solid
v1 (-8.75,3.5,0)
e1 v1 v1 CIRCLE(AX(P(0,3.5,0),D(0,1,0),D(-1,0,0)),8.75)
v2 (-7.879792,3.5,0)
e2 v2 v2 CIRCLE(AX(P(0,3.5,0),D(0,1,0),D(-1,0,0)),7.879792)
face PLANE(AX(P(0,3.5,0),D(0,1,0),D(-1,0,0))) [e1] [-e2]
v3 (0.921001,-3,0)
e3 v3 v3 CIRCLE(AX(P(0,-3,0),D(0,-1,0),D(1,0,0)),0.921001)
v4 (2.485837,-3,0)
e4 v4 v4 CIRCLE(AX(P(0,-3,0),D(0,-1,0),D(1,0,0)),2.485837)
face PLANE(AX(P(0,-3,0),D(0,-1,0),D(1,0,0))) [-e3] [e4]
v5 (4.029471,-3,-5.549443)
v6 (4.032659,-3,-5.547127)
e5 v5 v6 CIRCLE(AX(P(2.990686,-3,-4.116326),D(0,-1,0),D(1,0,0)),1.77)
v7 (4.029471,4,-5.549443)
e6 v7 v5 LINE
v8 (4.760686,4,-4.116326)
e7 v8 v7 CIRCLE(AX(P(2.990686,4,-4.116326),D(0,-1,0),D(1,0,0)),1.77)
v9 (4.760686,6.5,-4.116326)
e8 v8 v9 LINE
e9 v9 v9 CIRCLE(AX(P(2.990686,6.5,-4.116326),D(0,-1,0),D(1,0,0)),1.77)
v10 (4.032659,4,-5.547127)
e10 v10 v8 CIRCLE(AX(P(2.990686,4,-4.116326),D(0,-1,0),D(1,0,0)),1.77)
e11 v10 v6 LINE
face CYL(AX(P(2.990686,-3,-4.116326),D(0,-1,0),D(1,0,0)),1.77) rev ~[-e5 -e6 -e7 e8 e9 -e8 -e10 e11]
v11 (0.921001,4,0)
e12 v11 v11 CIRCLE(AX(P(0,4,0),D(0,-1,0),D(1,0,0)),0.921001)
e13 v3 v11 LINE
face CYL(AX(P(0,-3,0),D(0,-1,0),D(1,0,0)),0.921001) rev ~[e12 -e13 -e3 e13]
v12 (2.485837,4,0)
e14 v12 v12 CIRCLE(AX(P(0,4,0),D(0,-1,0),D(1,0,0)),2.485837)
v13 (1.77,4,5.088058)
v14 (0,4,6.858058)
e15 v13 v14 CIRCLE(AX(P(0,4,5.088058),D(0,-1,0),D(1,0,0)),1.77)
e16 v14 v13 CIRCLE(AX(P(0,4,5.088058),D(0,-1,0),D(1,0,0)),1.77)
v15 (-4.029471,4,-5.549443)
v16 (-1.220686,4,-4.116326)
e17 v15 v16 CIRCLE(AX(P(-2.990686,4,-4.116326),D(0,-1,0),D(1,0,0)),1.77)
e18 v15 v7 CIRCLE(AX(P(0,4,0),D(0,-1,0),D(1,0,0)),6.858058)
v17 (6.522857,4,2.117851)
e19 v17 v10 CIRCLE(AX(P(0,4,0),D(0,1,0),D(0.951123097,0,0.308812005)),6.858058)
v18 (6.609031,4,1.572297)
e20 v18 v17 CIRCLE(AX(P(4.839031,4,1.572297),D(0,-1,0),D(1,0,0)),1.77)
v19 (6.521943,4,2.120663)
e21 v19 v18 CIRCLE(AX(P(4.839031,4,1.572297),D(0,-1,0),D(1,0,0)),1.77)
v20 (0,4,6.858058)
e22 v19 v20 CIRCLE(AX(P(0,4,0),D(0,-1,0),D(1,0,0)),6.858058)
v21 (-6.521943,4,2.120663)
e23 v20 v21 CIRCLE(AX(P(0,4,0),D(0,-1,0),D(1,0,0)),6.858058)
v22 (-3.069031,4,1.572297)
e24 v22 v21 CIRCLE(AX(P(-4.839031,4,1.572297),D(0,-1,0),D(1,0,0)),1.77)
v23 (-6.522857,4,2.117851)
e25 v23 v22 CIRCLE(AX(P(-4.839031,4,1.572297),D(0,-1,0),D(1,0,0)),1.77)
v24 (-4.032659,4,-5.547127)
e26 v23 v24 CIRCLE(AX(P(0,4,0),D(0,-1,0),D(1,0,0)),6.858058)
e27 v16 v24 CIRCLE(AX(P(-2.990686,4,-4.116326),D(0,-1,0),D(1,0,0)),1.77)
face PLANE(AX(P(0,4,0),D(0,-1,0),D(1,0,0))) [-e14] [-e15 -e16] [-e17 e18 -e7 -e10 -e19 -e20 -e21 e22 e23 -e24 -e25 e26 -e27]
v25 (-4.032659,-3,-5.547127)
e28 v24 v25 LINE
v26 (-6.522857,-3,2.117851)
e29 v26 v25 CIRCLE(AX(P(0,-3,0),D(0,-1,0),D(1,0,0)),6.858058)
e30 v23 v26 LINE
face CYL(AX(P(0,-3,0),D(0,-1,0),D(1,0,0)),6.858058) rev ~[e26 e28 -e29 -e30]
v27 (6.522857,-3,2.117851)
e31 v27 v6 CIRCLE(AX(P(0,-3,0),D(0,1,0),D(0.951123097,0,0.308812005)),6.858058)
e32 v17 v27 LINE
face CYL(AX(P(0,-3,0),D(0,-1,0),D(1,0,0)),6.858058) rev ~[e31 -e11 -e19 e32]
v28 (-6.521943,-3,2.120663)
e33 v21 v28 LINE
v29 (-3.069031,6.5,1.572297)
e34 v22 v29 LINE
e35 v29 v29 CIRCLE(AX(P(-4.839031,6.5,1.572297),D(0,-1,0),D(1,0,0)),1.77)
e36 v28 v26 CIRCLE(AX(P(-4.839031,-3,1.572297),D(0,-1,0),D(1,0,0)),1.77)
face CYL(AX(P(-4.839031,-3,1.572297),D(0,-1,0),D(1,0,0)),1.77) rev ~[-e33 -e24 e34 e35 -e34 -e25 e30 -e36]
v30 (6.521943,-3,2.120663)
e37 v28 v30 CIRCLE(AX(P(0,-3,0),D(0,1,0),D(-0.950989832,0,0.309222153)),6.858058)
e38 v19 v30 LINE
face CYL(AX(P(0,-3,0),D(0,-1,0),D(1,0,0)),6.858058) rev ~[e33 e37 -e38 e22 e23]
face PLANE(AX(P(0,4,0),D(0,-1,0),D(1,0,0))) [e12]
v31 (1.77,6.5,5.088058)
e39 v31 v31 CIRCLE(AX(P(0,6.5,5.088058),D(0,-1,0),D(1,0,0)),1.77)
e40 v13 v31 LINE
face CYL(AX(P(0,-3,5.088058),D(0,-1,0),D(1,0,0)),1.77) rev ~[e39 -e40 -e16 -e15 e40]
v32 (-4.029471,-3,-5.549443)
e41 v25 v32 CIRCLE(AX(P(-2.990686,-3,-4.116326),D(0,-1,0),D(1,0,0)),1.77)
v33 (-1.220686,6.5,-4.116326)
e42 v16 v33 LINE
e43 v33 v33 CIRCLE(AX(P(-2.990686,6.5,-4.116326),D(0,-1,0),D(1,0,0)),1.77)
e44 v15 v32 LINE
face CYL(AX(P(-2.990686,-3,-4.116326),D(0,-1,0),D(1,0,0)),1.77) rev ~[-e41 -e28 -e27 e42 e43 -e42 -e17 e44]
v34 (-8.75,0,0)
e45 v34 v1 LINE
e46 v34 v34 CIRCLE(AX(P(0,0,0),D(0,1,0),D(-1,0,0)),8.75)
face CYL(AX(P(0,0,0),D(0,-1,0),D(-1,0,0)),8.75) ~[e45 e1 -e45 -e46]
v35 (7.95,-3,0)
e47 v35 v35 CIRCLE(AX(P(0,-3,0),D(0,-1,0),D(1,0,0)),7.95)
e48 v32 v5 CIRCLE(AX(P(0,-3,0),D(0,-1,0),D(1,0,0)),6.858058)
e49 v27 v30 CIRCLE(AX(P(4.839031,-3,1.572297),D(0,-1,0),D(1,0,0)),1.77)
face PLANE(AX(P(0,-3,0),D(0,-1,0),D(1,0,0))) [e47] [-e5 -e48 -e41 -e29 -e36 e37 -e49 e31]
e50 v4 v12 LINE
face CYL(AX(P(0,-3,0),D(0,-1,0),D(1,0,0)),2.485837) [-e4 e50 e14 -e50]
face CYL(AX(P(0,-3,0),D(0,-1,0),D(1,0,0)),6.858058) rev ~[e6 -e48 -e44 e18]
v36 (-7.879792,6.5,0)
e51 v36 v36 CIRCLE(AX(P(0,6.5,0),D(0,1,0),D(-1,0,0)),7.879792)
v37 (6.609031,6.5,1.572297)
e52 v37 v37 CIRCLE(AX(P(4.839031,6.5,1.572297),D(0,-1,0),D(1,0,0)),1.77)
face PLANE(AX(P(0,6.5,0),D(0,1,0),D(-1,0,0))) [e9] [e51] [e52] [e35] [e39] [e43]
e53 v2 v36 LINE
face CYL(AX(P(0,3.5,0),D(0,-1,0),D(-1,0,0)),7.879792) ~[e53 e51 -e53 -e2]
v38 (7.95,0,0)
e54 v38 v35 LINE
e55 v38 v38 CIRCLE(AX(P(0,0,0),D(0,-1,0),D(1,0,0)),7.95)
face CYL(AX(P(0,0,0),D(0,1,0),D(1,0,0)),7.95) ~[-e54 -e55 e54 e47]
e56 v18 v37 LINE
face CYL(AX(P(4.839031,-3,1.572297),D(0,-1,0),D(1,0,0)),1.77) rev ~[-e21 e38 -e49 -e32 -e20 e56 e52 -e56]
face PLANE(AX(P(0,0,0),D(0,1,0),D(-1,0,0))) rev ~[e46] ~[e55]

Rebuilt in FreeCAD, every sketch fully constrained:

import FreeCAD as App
import Part
import Sketcher

V = App.Vector

doc = App.newDocument("Part")
params = doc.addObject("Spreadsheet::Sheet", "Params")
for row, (alias, value) in enumerate([
    ("sketch1_diameter", "15.9 mm"),
    ("pad1_length", "3 mm"),
    ("sketch2_diameter", "17.5 mm"),
    ("pad2_length", "3.5 mm"),
    ("pad3_length", "3 mm"),
    ("sketch4_diameter", "3.54 mm"),
    ("pocket1_length", "25 mm"),
    ("pocket2_length", "7 mm"),
], start=1):
    params.set(f"A{row}", alias)
    params.set(f"B{row}", "=" + value)
    params.setAlias(f"B{row}", alias)

body = doc.addObject("PartDesign::Body", "Body")

# Sketch on XZ plane
sketch1 = body.newObject("Sketcher::SketchObject", "Sketch")
sketch1.AttachmentSupport = (doc.getObject("XZ_Plane"), [""])
sketch1.MapMode = "FlatFace"
sketch1.addGeometry(Part.Circle(V(0, 0, 0), V(0, 0, 1), 7.95), False)
sketch1.addConstraint(Sketcher.Constraint("Coincident", 0, 3, -1, 1))
sketch1.addConstraint(Sketcher.Constraint("Diameter", 0, 15.9))
sketch1.setExpression("Constraints[1]", "Params.sketch1_diameter")
pad1 = body.newObject("PartDesign::Pad", "Pad")
pad1.Profile = sketch1
pad1.setExpression("Length", "Params.pad1_length")

# Sketch on XZ plane
sketch2 = body.newObject("Sketcher::SketchObject", "Sketch001")
sketch2.AttachmentSupport = (doc.getObject("XZ_Plane"), [""])
sketch2.MapMode = "FlatFace"
sketch2.addGeometry(Part.Circle(V(0, 0, 0), V(0, 0, 1), 8.75), False)
sketch2.addConstraint(Sketcher.Constraint("Coincident", 0, 3, -1, 1))
sketch2.addConstraint(Sketcher.Constraint("Diameter", 0, 17.5))
sketch2.setExpression("Constraints[1]", "Params.sketch2_diameter")
pad2 = body.newObject("PartDesign::Pad", "Pad001")
pad2.Profile = sketch2
pad2.setExpression("Length", "Params.pad2_length")
pad2.Reversed = True

# Sketch on XZ plane
sketch3 = body.newObject("Sketcher::SketchObject", "Sketch002")
sketch3.AttachmentSupport = (doc.getObject("XZ_Plane"), [""])
sketch3.MapMode = "FlatFace"
sketch3.AttachmentOffset = App.Placement(V(0, 0, -3.5), App.Rotation())
sketch3.addGeometry(Part.Circle(V(0, 0, 0), V(0, 0, 1), 7.879792), False)
sketch3.addConstraint(Sketcher.Constraint("Coincident", 0, 3, -1, 1))
sketch3.addConstraint(Sketcher.Constraint("Diameter", 0, 15.759584))
pad3 = body.newObject("PartDesign::Pad", "Pad002")
pad3.Profile = sketch3
pad3.setExpression("Length", "Params.pad3_length")
pad3.Reversed = True

# Sketch on XZ plane
sketch4 = body.newObject("Sketcher::SketchObject", "Sketch003")
sketch4.AttachmentSupport = (doc.getObject("XZ_Plane"), [""])
sketch4.MapMode = "FlatFace"
sketch4.AttachmentOffset = App.Placement(V(0, 0, 3), App.Rotation())
sketch4.addGeometry(Part.Circle(V(0, 5.088058, 0), V(0, 0, 1), 1.77), False)
sketch4.addGeometry(Part.Circle(V(-4.839031, 1.572297, 0), V(0, 0, 1), 1.77), False)
sketch4.addGeometry(Part.Circle(V(-2.990686, -4.116326, 0), V(0, 0, 1), 1.77), False)
sketch4.addGeometry(Part.Circle(V(2.990686, -4.116326, 0), V(0, 0, 1), 1.77), False)
sketch4.addGeometry(Part.Circle(V(4.839031, 1.572297, 0), V(0, 0, 1), 1.77), False)
sketch4.addConstraint(Sketcher.Constraint("Equal", 0, 1))
sketch4.addConstraint(Sketcher.Constraint("Equal", 1, 2))
sketch4.addConstraint(Sketcher.Constraint("Equal", 2, 3))
sketch4.addConstraint(Sketcher.Constraint("Equal", 3, 4))
sketch4.addConstraint(Sketcher.Constraint("Symmetric", 2, 3, 3, 3, -2))
sketch4.addConstraint(Sketcher.Constraint("Symmetric", 1, 3, 4, 3, -2))
sketch4.addConstraint(Sketcher.Constraint("PointOnObject", 0, 3, -2))
sketch4.addConstraint(Sketcher.Constraint("Diameter", 0, 3.54))
sketch4.addConstraint(Sketcher.Constraint("DistanceY", -1, 1, 0, 3, 5.088058))
sketch4.addConstraint(Sketcher.Constraint("DistanceX", 1, 3, -1, 1, 4.839031))
sketch4.addConstraint(Sketcher.Constraint("DistanceY", 1, 3, 0, 3, 3.515761))
sketch4.addConstraint(Sketcher.Constraint("DistanceX", 2, 3, -1, 1, 2.990686))
sketch4.addConstraint(Sketcher.Constraint("DistanceY", 2, 3, -1, 1, 4.116326))
sketch4.setExpression("Constraints[7]", "Params.sketch4_diameter")
pocket1 = body.newObject("PartDesign::Pocket", "Pocket")
pocket1.Profile = sketch4
pocket1.setExpression("Length", "Params.pocket1_length")

# Sketch on XZ plane
sketch5 = body.newObject("Sketcher::SketchObject", "Sketch004")
sketch5.AttachmentSupport = (doc.getObject("XZ_Plane"), [""])
sketch5.MapMode = "FlatFace"
sketch5.AttachmentOffset = App.Placement(V(0, 0, 3), App.Rotation())
sketch5.addGeometry(Part.Circle(V(0, 0, 0), V(0, 0, 1), 6.858058), False)
sketch5.addGeometry(Part.Circle(V(0, 0, 0), V(0, 0, 1), 2.485837), False)
sketch5.addGeometry(Part.Circle(V(0, 0, 0), V(0, 0, 1), 0.921001), False)
sketch5.addConstraint(Sketcher.Constraint("Coincident", 0, 3, -1, 1))
sketch5.addConstraint(Sketcher.Constraint("Coincident", 1, 3, -1, 1))
sketch5.addConstraint(Sketcher.Constraint("Coincident", 2, 3, -1, 1))
sketch5.addConstraint(Sketcher.Constraint("Diameter", 2, 1.842002))
sketch5.addConstraint(Sketcher.Constraint("Diameter", 0, 13.716116))
sketch5.addConstraint(Sketcher.Constraint("Diameter", 1, 4.971674))
pocket2 = body.newObject("PartDesign::Pocket", "Pocket001")
pocket2.Profile = sketch5
pocket2.setExpression("Length", "Params.pocket2_length")

doc.recompute()
